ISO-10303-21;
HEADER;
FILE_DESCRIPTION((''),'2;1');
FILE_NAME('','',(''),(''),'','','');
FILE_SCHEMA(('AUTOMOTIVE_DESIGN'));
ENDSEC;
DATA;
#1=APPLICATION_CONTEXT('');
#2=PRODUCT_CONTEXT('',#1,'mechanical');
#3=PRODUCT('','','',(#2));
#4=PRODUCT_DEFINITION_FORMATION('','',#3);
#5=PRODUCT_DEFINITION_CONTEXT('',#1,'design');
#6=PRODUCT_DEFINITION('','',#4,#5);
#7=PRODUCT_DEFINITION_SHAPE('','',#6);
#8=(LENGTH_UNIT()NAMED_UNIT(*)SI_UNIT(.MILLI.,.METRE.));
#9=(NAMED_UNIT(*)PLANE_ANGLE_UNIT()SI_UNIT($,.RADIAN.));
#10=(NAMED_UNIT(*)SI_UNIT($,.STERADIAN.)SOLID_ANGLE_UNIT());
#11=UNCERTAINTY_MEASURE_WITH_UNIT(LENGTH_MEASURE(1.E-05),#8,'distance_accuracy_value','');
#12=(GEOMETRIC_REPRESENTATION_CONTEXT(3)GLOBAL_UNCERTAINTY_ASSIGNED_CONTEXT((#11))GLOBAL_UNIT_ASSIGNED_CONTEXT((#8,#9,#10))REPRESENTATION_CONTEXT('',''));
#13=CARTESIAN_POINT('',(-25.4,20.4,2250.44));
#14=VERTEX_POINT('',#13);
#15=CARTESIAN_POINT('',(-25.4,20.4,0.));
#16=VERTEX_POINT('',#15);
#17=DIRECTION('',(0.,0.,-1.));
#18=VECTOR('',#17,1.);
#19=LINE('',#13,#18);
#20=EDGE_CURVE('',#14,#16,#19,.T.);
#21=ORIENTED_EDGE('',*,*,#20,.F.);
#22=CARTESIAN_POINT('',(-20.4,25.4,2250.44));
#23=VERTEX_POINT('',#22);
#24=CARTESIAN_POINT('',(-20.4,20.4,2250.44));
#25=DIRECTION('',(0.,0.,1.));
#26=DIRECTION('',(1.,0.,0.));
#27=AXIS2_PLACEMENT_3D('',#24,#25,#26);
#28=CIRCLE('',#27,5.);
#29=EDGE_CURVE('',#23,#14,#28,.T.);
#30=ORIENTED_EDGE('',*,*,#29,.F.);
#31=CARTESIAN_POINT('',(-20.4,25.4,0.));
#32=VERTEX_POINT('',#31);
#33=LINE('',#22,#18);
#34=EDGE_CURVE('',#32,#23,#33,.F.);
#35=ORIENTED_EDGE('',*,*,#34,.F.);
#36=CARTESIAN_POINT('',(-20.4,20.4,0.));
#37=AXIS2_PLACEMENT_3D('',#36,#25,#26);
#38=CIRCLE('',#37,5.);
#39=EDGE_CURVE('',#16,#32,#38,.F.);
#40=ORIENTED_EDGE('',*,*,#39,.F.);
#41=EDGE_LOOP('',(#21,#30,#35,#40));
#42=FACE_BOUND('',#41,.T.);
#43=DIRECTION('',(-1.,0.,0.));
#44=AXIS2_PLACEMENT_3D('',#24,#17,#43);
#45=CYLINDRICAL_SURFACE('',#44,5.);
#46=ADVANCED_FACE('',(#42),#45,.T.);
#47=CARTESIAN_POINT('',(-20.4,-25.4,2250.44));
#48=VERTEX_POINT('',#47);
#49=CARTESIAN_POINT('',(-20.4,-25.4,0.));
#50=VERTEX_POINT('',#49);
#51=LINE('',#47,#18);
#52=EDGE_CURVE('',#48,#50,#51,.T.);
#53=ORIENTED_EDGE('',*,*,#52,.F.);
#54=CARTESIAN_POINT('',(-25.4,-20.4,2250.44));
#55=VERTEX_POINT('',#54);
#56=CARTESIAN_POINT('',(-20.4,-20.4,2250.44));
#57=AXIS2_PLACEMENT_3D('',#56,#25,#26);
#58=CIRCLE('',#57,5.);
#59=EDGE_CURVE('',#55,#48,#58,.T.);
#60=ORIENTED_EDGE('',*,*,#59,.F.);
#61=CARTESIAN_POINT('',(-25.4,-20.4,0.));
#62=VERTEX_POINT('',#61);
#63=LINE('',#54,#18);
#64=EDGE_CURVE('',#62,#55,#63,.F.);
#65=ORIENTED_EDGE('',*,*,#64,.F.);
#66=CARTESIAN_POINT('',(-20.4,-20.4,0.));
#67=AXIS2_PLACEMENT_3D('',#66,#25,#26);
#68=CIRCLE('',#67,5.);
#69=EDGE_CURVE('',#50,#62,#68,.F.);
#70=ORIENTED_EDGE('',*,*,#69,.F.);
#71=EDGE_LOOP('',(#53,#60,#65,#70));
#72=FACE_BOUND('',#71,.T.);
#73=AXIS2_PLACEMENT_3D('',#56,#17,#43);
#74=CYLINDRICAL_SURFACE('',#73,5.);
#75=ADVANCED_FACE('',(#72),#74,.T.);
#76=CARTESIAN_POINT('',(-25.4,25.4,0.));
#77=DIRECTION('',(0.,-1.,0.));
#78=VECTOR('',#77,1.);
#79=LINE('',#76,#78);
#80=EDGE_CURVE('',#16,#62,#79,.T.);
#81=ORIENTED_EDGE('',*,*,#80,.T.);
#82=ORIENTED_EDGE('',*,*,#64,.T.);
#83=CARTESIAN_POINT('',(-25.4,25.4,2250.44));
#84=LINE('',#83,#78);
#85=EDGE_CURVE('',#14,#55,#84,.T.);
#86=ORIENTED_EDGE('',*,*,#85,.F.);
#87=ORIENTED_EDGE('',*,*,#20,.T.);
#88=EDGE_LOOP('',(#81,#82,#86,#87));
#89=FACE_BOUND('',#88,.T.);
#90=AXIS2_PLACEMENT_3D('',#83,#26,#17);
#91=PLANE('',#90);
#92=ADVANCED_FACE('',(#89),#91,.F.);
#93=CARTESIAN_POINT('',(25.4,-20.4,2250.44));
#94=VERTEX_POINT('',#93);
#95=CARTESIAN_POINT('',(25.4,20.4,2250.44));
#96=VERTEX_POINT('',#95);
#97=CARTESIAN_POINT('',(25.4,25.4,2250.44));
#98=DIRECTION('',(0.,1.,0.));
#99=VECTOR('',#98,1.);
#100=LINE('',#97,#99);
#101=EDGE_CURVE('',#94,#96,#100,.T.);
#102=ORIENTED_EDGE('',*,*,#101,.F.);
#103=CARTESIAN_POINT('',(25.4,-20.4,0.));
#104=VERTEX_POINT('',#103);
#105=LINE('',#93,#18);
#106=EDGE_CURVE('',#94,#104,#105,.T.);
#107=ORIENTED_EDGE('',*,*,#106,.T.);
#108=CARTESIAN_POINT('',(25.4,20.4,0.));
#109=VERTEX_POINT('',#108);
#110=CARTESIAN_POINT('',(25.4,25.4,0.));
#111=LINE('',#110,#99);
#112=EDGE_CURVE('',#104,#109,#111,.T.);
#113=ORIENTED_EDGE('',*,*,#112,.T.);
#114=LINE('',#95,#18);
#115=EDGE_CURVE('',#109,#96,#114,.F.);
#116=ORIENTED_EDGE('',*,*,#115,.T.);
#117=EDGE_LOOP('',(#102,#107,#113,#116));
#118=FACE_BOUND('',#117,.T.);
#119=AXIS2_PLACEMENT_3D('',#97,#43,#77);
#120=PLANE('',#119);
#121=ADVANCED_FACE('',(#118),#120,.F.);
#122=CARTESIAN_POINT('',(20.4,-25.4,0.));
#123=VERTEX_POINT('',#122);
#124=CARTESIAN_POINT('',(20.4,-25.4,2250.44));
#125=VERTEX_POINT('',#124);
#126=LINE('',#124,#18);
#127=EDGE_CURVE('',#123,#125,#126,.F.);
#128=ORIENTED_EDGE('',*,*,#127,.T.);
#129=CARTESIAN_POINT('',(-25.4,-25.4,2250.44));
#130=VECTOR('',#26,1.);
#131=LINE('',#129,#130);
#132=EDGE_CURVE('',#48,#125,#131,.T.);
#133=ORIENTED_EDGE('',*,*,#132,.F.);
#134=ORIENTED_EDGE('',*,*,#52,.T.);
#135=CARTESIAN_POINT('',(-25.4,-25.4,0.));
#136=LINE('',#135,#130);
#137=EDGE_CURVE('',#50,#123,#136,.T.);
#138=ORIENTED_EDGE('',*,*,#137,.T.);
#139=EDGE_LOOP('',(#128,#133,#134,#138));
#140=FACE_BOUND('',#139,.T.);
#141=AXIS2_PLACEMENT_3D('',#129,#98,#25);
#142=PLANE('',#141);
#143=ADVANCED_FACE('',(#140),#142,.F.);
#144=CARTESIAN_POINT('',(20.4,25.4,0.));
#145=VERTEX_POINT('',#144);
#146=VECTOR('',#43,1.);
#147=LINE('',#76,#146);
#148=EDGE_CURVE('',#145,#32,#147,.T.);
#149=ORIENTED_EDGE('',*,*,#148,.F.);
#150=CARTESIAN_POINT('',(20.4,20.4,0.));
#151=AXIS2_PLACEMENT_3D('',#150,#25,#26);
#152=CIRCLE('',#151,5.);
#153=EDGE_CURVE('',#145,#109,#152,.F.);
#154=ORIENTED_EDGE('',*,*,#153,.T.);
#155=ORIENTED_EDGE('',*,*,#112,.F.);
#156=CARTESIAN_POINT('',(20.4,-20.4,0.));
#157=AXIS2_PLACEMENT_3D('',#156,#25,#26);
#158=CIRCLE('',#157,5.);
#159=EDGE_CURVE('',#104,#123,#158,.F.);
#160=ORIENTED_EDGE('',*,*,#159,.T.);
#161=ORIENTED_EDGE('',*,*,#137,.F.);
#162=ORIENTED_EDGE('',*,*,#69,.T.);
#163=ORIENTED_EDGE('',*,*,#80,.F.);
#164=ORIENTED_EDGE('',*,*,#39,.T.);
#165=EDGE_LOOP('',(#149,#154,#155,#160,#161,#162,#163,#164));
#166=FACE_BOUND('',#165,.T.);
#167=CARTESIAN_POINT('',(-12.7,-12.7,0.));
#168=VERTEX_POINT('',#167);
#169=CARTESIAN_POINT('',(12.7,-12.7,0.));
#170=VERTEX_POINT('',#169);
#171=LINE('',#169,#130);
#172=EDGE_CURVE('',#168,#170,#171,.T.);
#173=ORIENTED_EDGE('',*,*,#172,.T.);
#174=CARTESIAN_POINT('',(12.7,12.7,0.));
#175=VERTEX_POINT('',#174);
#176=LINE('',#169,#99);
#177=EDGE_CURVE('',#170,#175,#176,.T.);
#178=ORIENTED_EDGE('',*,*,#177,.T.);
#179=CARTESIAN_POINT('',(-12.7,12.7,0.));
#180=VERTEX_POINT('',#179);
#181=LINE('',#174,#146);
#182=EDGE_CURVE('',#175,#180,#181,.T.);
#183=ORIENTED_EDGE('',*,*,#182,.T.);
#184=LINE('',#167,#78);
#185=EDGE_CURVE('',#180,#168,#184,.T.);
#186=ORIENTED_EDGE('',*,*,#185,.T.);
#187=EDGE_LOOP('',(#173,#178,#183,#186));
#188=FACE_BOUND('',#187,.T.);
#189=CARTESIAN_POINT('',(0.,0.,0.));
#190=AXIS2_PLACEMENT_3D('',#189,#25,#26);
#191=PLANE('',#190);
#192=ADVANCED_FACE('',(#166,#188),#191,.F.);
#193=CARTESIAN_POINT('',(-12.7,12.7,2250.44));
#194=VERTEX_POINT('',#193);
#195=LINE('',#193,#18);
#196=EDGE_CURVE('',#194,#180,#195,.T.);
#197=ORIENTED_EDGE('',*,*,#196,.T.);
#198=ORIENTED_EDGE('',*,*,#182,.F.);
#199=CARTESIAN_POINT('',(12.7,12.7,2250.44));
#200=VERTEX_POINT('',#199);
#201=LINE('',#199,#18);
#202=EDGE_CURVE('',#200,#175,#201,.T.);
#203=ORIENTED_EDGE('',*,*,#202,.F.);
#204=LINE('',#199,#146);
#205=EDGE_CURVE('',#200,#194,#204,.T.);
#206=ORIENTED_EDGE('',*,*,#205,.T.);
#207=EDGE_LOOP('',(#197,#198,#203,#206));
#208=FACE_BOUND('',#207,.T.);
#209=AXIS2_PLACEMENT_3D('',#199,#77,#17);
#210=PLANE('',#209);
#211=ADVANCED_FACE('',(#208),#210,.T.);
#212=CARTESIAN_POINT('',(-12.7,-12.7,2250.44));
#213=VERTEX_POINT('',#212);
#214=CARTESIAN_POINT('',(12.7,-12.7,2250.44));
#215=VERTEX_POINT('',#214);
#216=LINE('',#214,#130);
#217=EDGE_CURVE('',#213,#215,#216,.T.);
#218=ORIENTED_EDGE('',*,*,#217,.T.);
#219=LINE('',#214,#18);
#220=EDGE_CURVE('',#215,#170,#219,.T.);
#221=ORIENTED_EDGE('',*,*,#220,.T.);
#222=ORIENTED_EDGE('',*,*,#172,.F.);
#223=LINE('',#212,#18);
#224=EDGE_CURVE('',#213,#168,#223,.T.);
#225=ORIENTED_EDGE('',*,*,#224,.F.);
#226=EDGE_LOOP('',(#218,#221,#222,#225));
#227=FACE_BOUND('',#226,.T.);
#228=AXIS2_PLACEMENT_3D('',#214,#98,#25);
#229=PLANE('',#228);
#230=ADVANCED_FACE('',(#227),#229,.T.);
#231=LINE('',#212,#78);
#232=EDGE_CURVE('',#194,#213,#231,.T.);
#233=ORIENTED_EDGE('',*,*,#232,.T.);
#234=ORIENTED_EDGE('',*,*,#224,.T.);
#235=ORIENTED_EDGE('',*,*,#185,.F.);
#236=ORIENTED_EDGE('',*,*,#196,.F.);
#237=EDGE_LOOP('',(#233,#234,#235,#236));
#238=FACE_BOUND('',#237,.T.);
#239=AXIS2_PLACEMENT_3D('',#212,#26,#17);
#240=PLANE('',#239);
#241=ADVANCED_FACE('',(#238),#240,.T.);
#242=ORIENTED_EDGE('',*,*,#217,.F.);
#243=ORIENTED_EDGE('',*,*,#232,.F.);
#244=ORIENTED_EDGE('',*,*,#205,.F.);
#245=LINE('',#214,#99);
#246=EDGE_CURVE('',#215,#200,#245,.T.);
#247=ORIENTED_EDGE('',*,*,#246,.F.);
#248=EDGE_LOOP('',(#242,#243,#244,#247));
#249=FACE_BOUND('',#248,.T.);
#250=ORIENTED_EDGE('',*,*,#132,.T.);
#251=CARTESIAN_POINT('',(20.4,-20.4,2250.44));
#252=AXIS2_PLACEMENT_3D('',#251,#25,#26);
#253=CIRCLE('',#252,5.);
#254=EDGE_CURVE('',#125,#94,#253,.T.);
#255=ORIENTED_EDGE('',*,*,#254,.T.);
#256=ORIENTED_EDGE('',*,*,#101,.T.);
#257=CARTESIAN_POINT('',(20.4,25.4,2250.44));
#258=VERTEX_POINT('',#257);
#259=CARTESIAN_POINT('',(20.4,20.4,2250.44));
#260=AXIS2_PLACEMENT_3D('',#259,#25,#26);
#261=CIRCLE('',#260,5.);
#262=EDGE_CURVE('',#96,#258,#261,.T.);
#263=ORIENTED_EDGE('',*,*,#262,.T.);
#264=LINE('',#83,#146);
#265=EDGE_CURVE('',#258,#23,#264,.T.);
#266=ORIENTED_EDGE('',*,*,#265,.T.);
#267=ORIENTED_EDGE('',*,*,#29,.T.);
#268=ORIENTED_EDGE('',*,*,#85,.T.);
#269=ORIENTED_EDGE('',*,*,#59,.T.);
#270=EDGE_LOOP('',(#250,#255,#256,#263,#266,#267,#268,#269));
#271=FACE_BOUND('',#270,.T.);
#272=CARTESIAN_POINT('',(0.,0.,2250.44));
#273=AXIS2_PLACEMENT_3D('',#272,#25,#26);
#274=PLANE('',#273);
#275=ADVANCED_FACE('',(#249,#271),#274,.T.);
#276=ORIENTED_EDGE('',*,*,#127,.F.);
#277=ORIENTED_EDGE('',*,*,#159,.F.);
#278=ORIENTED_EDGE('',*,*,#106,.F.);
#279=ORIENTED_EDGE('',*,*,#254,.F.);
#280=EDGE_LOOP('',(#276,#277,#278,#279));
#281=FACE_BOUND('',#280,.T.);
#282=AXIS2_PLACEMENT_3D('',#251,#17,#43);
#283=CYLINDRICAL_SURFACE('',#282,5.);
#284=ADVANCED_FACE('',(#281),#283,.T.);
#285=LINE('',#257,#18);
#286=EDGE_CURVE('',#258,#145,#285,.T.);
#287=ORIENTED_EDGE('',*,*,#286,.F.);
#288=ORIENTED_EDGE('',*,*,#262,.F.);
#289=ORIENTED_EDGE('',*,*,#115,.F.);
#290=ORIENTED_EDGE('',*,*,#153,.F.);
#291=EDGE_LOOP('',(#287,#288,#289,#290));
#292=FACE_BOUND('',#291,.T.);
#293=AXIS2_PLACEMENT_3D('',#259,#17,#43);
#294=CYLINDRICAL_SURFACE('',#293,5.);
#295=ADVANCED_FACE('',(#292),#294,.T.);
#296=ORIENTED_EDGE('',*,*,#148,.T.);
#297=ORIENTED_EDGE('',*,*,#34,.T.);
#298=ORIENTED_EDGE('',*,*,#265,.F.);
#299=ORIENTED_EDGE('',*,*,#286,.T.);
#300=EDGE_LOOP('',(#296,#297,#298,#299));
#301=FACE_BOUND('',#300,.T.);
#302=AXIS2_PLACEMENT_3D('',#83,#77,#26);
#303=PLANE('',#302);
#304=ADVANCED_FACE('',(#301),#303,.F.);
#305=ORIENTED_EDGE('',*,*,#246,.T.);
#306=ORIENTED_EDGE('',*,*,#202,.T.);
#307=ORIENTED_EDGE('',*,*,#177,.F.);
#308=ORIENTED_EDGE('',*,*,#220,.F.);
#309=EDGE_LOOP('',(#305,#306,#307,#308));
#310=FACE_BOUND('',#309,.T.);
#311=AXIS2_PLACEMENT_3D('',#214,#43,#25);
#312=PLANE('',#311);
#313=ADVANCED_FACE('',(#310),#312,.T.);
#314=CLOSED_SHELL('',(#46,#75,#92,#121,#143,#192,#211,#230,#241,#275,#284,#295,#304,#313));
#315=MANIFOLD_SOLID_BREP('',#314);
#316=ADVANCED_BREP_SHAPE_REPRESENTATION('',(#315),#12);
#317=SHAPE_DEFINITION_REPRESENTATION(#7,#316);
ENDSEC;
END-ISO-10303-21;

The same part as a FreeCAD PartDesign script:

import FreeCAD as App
import Part
import Sketcher
Q = App.Units.Quantity


def edges_at(feature, points):
    """Names of the edges that pass closest to the given points."""
    edges = feature.Shape.Edges
    near = lambda p: min(range(len(edges)), key=lambda i: edges[i].distToShape(Part.Vertex(*p))[0])
    return sorted({f"Edge{near(p) + 1}" for p in points})

doc = App.newDocument("Part")
params = doc.addObject("Spreadsheet::Sheet", "Params")
for row, (alias, value) in enumerate([
    ("sketch1_width", "2 in"),
    ("sketch1_width2", "1 in"),
    ("pad1_length", "88.6 in"),
    ("fillet_radius", "5 mm"),
], start=1):
    params.set(f"A{row}", alias)
    params.set(f"B{row}", "=" + value)
    params.setAlias(f"B{row}", alias)

body = doc.addObject("PartDesign::Body", "Body")

# Sketch on XY plane
sketch1 = doc.addObject("Sketcher::SketchObject", "Sketch")
body.addObject(sketch1)
sketch1.AttachmentSupport = (doc.XY_Plane, [""])
sketch1.MapMode = "FlatFace"
sketch1.addGeometry(Part.LineSegment(App.Vector(-25, 25, 0), App.Vector(-25, -25, 0)), False)
sketch1.addGeometry(Part.LineSegment(App.Vector(-25, -25, 0), App.Vector(25, -25, 0)), False)
sketch1.addGeometry(Part.LineSegment(App.Vector(25, -25, 0), App.Vector(25, 25, 0)), False)
sketch1.addGeometry(Part.LineSegment(App.Vector(25, 25, 0), App.Vector(-25, 25, 0)), False)
sketch1.addGeometry(Part.LineSegment(App.Vector(13, -13, 0), App.Vector(-13, -13, 0)), False)
sketch1.addGeometry(Part.LineSegment(App.Vector(-13, -13, 0), App.Vector(-13, 13, 0)), False)
sketch1.addGeometry(Part.LineSegment(App.Vector(-13, 13, 0), App.Vector(13, 13, 0)), False)
sketch1.addGeometry(Part.LineSegment(App.Vector(13, 13, 0), App.Vector(13, -13, 0)), False)
sketch1.addConstraint(Sketcher.Constraint("Coincident", 0, 2, 1, 1))
sketch1.addConstraint(Sketcher.Constraint("Coincident", 1, 2, 2, 1))
sketch1.addConstraint(Sketcher.Constraint("Coincident", 2, 2, 3, 1))
sketch1.addConstraint(Sketcher.Constraint("Coincident", 3, 2, 0, 1))
sketch1.addConstraint(Sketcher.Constraint("Coincident", 4, 2, 5, 1))
sketch1.addConstraint(Sketcher.Constraint("Coincident", 5, 2, 6, 1))
sketch1.addConstraint(Sketcher.Constraint("Coincident", 6, 2, 7, 1))
sketch1.addConstraint(Sketcher.Constraint("Coincident", 7, 2, 4, 1))
sketch1.addConstraint(Sketcher.Constraint("Vertical", 0))
sketch1.addConstraint(Sketcher.Constraint("Horizontal", 1))
sketch1.addConstraint(Sketcher.Constraint("Vertical", 2))
sketch1.addConstraint(Sketcher.Constraint("Horizontal", 3))
sketch1.addConstraint(Sketcher.Constraint("Horizontal", 4))
sketch1.addConstraint(Sketcher.Constraint("Vertical", 5))
sketch1.addConstraint(Sketcher.Constraint("Horizontal", 6))
sketch1.addConstraint(Sketcher.Constraint("Vertical", 7))
sketch1.addConstraint(Sketcher.Constraint("Symmetric", 0, 2, 2, 2, -1, 1))
sketch1.addConstraint(Sketcher.Constraint("Symmetric", 4, 2, 6, 2, -1, 1))
sketch1.addConstraint(Sketcher.Constraint("Equal", 3, 0))
sketch1.addConstraint(Sketcher.Constraint("Equal", 6, 5))
sketch1.addConstraint(Sketcher.Constraint("DistanceX", 1, 1, 1, 2, Q("2 in")))
sketch1.addConstraint(Sketcher.Constraint("DistanceX", 4, 2, 4, 1, Q("1 in")))
sketch1.setExpression("Constraints[20]", "Params.sketch1_width")
sketch1.setExpression("Constraints[21]", "Params.sketch1_width2")
pad1 = doc.addObject("PartDesign::Pad", "Pad")
body.addObject(pad1)
pad1.Profile = sketch1
pad1.setExpression("Length", "Params.pad1_length")
doc.recompute()

fillet = doc.addObject("PartDesign::Fillet", "Fillet")
body.addObject(fillet)
fillet.Base = (pad1, edges_at(pad1, [
    (25.4, -25.4, 1125.22),
    (-25.4, -25.4, 1125.22),
    (-25.4, 25.4, 1125.22),
    (25.4, 25.4, 1125.22),
]))
fillet.setExpression("Radius", "Params.fillet_radius")

doc.recompute()
